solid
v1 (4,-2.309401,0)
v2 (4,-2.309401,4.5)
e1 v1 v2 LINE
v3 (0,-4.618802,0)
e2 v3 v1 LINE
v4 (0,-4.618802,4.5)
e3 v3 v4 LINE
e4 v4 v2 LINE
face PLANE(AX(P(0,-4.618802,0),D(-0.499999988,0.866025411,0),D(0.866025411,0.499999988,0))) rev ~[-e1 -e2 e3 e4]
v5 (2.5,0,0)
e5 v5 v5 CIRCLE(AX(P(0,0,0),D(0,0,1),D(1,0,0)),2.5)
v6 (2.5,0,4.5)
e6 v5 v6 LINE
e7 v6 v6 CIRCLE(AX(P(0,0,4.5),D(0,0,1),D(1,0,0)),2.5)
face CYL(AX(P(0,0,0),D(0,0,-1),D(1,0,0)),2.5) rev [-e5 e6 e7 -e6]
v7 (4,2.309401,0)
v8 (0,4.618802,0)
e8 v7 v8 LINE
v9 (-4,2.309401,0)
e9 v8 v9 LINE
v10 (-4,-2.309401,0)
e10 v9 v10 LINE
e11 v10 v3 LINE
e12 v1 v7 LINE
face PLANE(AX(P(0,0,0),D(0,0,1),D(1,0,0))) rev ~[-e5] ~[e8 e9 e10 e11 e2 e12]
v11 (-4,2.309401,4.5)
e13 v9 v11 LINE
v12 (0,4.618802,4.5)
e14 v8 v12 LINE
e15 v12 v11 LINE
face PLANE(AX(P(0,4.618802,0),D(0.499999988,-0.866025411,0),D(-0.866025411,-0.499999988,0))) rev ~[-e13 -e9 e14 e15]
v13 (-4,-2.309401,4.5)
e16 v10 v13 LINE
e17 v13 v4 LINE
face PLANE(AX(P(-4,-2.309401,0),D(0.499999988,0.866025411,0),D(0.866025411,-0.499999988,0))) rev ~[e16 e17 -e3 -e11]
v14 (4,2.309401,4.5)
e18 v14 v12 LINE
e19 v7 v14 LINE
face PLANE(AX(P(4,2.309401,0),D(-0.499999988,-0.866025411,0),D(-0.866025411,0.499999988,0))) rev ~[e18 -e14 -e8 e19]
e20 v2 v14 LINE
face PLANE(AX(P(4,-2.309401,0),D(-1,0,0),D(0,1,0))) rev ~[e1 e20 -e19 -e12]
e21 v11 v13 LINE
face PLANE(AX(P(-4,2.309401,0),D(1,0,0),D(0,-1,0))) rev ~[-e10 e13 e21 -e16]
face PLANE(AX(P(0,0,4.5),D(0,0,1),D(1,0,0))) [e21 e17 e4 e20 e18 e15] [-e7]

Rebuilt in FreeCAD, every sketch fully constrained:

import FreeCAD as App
import Part
import Sketcher
Q = App.Units.Quantity

doc = App.newDocument("Part")
body = doc.addObject("PartDesign::Body", "Body")

sketch1 = doc.addObject("Sketcher::SketchObject", "Sketch")
body.addObject(sketch1)
sketch1.AttachmentSupport = (doc.XY_Plane, [""])
sketch1.MapMode = "FlatFace"
sketch1.addGeometry([
    Part.LineSegment(App.Vector(4, 2.3, 0), App.Vector(0, 4.6, 0)),
    Part.LineSegment(App.Vector(0, 4.6, 0), App.Vector(-4, 2.3, 0)),
    Part.LineSegment(App.Vector(-4, 2.3, 0), App.Vector(-4, -2.3, 0)),
    Part.LineSegment(App.Vector(-4, -2.3, 0), App.Vector(0, -4.6, 0)),
    Part.LineSegment(App.Vector(0, -4.6, 0), App.Vector(4, -2.3, 0)),
    Part.LineSegment(App.Vector(4, -2.3, 0), App.Vector(4, 2.3, 0)),
    Part.Circle(App.Vector(0, 0, 0), App.Vector(0, 0, 1), 2.5),
], False)
sketch1.addConstraint([
    Sketcher.Constraint("Coincident", 0, 2, 1, 1),
    Sketcher.Constraint("Coincident", 1, 2, 2, 1),
    Sketcher.Constraint("Coincident", 2, 2, 3, 1),
    Sketcher.Constraint("Coincident", 3, 2, 4, 1),
    Sketcher.Constraint("Coincident", 4, 2, 5, 1),
    Sketcher.Constraint("Coincident", 5, 2, 0, 1),
    Sketcher.Constraint("Vertical", 2),
    Sketcher.Constraint("Vertical", 5),
    Sketcher.Constraint("Coincident", 6, 3, -1, 1),
    Sketcher.Constraint("Symmetric", 0, 2, 3, 2, -1, 1),
    Sketcher.Constraint("Symmetric", 1, 2, 4, 2, -1, 1),
    Sketcher.Constraint("PointOnObject", 0, 2, -2),
    Sketcher.Constraint("Parallel", 0, 3),
    Sketcher.Constraint("Horizontal", 2, 2, 4, 2),
    Sketcher.Constraint("Diameter", 6, 5.0),
    Sketcher.Constraint("Angle", 0, Q("150.000001 deg")),
    Sketcher.Constraint("DistanceX", 1, 2, -1, 1, 4.0),
    Sketcher.Constraint("DistanceY", 2, 2, 2, 1, 4.618802),
])
pad1 = doc.addObject("PartDesign::Pad", "Pad")
body.addObject(pad1)
pad1.Profile = sketch1
pad1.Length = 4.5

doc.recompute()
